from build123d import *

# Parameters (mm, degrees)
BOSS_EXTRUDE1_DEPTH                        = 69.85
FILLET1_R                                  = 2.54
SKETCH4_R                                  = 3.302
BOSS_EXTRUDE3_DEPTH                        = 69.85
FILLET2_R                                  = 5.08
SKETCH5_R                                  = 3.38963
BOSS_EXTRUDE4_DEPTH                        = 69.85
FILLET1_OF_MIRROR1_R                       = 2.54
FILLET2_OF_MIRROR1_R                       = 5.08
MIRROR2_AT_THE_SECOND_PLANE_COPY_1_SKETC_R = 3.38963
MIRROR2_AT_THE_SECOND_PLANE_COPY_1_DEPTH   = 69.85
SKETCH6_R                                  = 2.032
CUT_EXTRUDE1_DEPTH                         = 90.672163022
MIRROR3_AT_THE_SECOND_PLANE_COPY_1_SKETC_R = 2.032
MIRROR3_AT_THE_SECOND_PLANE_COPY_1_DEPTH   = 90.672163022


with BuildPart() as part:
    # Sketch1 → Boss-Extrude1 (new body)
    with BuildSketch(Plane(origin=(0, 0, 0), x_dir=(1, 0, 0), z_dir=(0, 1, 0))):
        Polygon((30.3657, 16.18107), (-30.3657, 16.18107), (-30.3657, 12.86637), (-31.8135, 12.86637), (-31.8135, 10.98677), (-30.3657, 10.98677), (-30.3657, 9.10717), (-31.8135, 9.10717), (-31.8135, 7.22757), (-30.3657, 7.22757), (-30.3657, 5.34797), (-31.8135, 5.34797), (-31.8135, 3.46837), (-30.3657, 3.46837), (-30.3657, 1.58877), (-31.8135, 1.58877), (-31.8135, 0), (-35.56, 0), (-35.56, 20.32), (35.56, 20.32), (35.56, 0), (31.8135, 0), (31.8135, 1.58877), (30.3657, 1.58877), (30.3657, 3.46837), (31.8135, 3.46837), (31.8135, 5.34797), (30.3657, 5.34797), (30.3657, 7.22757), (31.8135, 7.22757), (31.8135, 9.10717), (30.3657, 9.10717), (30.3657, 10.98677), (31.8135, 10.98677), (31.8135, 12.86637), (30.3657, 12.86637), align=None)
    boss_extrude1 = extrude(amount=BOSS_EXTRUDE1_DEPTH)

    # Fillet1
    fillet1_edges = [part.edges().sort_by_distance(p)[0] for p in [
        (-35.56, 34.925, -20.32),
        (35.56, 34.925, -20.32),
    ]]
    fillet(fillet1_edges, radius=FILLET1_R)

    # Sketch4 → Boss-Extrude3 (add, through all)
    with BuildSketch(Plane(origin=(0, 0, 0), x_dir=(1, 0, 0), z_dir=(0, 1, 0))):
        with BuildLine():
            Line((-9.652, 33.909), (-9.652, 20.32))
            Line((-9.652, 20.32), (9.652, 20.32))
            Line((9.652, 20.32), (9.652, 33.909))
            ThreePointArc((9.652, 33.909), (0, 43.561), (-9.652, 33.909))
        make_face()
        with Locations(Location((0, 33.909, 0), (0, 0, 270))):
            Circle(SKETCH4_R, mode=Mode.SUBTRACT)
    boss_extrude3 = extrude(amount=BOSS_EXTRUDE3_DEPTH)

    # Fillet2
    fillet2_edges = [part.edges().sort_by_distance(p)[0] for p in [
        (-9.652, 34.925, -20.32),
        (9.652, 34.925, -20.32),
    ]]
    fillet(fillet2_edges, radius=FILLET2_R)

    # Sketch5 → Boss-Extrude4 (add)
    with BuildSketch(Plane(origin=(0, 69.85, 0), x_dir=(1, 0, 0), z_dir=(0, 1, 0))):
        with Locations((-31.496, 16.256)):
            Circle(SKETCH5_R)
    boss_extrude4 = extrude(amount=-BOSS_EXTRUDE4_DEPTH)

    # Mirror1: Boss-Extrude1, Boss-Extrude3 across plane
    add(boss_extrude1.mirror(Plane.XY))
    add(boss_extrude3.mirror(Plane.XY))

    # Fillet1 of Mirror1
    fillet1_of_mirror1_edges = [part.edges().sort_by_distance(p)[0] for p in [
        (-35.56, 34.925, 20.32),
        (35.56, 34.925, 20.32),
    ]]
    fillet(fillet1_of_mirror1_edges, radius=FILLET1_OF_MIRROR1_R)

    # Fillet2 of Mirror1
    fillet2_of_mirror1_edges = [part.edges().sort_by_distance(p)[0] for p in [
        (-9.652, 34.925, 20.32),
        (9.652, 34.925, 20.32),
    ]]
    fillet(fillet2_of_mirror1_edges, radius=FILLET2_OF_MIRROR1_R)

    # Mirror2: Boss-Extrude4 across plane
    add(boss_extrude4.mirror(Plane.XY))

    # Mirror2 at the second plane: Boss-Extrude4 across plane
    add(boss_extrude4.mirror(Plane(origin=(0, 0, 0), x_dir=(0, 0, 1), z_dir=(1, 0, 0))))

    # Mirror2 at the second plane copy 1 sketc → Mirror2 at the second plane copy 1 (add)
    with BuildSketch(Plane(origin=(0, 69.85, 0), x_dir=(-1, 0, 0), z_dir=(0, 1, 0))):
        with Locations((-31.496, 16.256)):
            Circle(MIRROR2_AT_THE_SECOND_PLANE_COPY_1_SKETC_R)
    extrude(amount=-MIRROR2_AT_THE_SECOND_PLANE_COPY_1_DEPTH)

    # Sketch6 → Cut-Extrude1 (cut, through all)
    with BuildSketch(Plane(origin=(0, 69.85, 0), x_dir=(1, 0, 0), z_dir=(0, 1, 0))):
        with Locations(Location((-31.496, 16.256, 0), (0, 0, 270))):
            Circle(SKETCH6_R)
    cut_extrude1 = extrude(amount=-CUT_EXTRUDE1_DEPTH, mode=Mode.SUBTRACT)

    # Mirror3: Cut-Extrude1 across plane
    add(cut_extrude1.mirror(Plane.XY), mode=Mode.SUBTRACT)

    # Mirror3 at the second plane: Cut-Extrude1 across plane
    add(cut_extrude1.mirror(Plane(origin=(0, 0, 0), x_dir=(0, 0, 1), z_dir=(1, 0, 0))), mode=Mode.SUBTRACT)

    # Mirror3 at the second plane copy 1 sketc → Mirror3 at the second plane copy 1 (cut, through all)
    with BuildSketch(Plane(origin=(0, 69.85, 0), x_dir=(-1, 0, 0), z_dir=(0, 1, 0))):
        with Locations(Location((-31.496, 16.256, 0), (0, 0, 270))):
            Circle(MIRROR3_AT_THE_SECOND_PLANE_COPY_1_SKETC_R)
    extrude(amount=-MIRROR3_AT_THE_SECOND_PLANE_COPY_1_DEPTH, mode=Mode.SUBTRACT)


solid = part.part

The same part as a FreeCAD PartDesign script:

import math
import FreeCAD as App
import Part
import Sketcher
from FreeCAD import Vector
Q = App.Units.Quantity


def edges_at(feature, points):
    """Names of the edges that pass closest to the given points."""
    edges = feature.Shape.Edges
    near = lambda p: min(range(len(edges)), key=lambda i: edges[i].distToShape(Part.Vertex(*p))[0])
    return sorted({f"Edge{near(p) + 1}" for p in points})


def add_polygon(sketch, points):
    """Adds a closed chain of lines whose ends are joined by coincident constraints."""
    first, n = sketch.GeometryCount, len(points)
    for a, b in zip(points, points[1:] + points[:1]):
        sketch.addGeometry(Part.LineSegment(App.Vector(*a, 0), App.Vector(*b, 0)), False)
    for i in range(n):
        sketch.addConstraint(Sketcher.Constraint("Coincident", first + i, 2, first + (i + 1) % n, 1))

doc = App.newDocument("Part")
body = doc.addObject("PartDesign::Body", "Body")

# Sketch on XZ plane
sketch1 = body.newObject("Sketcher::SketchObject", "Sketch")
sketch1.AttachmentSupport = (doc.getObject("XZ_Plane"), [""])
sketch1.MapMode = "FlatFace"
add_polygon(sketch1, [(-30.4, -16.2), (30.4, -16.2), (30.4, -12.9), (31.8, -12.9), (31.8, -11), (30.4, -11), (30.4, -9.1), (31.8, -9.1), (31.8, -7.2), (30.4, -7.2), (30.4, -5.3), (31.8, -5.3), (31.8, -3.5), (30.4, -3.5), (30.4, -1.6), (31.8, -1.6), (31.8, 0), (35.6, 0), (35.6, -20.3), (-35.6, -20.3), (-35.6, 0), (-31.8, 0), (-31.8, -1.6), (-30.4, -1.6), (-30.4, -3.5), (-31.8, -3.5), (-31.8, -5.3), (-30.4, -5.3), (-30.4, -7.2), (-31.8, -7.2), (-31.8, -9.1), (-30.4, -9.1), (-30.4, -11), (-31.8, -11), (-31.8, -12.9), (-30.4, -12.9)])  # lines 0-35
sketch1.addConstraint([
    Sketcher.Constraint("Horizontal", 0),
    Sketcher.Constraint("Vertical", 1),
    Sketcher.Constraint("Horizontal", 2),
    Sketcher.Constraint("Vertical", 3),
    Sketcher.Constraint("Horizontal", 4),
    Sketcher.Constraint("Vertical", 5),
    Sketcher.Constraint("Horizontal", 6),
    Sketcher.Constraint("Vertical", 7),
    Sketcher.Constraint("Horizontal", 8),
    Sketcher.Constraint("Vertical", 9),
    Sketcher.Constraint("Horizontal", 10),
    Sketcher.Constraint("Vertical", 11),
    Sketcher.Constraint("Horizontal", 12),
    Sketcher.Constraint("Vertical", 13),
    Sketcher.Constraint("Horizontal", 14),
    Sketcher.Constraint("Vertical", 15),
    Sketcher.Constraint("Horizontal", 16),
    Sketcher.Constraint("Vertical", 17),
    Sketcher.Constraint("Horizontal", 18),
    Sketcher.Constraint("Vertical", 19),
    Sketcher.Constraint("Horizontal", 20),
    Sketcher.Constraint("Vertical", 21),
    Sketcher.Constraint("Horizontal", 22),
    Sketcher.Constraint("Vertical", 23),
    Sketcher.Constraint("Horizontal", 24),
    Sketcher.Constraint("Vertical", 25),
    Sketcher.Constraint("Horizontal", 26),
    Sketcher.Constraint("Vertical", 27),
    Sketcher.Constraint("Horizontal", 28),
    Sketcher.Constraint("Vertical", 29),
    Sketcher.Constraint("Horizontal", 30),
    Sketcher.Constraint("Vertical", 31),
    Sketcher.Constraint("Horizontal", 32),
    Sketcher.Constraint("Vertical", 33),
    Sketcher.Constraint("Horizontal", 34),
    Sketcher.Constraint("Vertical", 35),
    Sketcher.Constraint("Symmetric", 16, 2, 19, 2, -1, 1),
    Sketcher.Constraint("Symmetric", 15, 2, 20, 2, -2),
    Sketcher.Constraint("Symmetric", 13, 2, 22, 2, -2),
    Sketcher.Constraint("Symmetric", 11, 2, 24, 2, -2),
    Sketcher.Constraint("Symmetric", 9, 2, 26, 2, -2),
    Sketcher.Constraint("Symmetric", 7, 2, 28, 2, -2),
    Sketcher.Constraint("Symmetric", 5, 2, 30, 2, -2),
    Sketcher.Constraint("Symmetric", 3, 2, 32, 2, -2),
    Sketcher.Constraint("Symmetric", 1, 2, 34, 2, -2),
    Sketcher.Constraint("Vertical", 1, 2, 4, 2),
    Sketcher.Constraint("Vertical", 3, 2, 6, 2),
    Sketcher.Constraint("Vertical", 5, 2, 8, 2),
    Sketcher.Constraint("Vertical", 7, 2, 10, 2),
    Sketcher.Constraint("Vertical", 9, 2, 12, 2),
    Sketcher.Constraint("Vertical", 11, 2, 14, 2),
    Sketcher.Constraint("Equal", 3, 5),
    Sketcher.Constraint("Equal", 5, 7),
    Sketcher.Constraint("Equal", 7, 9),
    Sketcher.Constraint("Equal", 9, 11),
    Sketcher.Constraint("Equal", 11, 13),
    Sketcher.Constraint("DistanceX", 18, 2, 18, 1, Q("2.8 in")),
    Sketcher.Constraint("DistanceY", 17, 2, 17, 1, Q("0.8 in")),
    Sketcher.Constraint("DistanceX", 0, 1, 0, 2, Q("2.391 in")),
    Sketcher.Constraint("DistanceX", 2, 1, 2, 2, Q("0.057 in")),
    Sketcher.Constraint("DistanceY", 3, 1, 3, 2, Q("0.074 in")),
    Sketcher.Constraint("DistanceY", 1, 1, 1, 2, Q("0.1305 in")),
    Sketcher.Constraint("DistanceY", 15, 1, 15, 2, Q("1.58877 mm")),
])
pad1 = body.newObject("PartDesign::Pad", "Pad")
pad1.Profile = sketch1
pad1.Length = Q("2.75 in")
pad1.Reversed = True
doc.recompute()

fillet = body.newObject("PartDesign::Fillet", "Fillet")
fillet.Base = (pad1, edges_at(pad1, [(-35.56, 34.925, -20.32), (35.56, 34.925, -20.32)]))
fillet.Radius = Q("0.1 in")

# Sketch on XZ plane
sketch2 = body.newObject("Sketcher::SketchObject", "Sketch001")
sketch2.AttachmentSupport = (doc.getObject("XZ_Plane"), [""])
sketch2.MapMode = "FlatFace"
sketch2.addGeometry([
    Part.LineSegment(Vector(-9.7, -33.9, 0), Vector(-9.7, -20.3, 0)),  # 0
    Part.LineSegment(Vector(-9.7, -20.3, 0), Vector(9.7, -20.3, 0)),  # 1
    Part.LineSegment(Vector(9.7, -20.3, 0), Vector(9.7, -33.9, 0)),  # 2
    Part.ArcOfCircle(Part.Circle(Vector(0, -33.9, 0), Vector(0, 0, 1), 9.7), math.radians(180), math.radians(360)),  # 3
    Part.Circle(Vector(0, -33.9, 0), Vector(0, 0, 1), 3.3),  # 4
], False)
sketch2.addConstraint([
    Sketcher.Constraint("Coincident", 0, 2, 1, 1),
    Sketcher.Constraint("Coincident", 1, 2, 2, 1),
    Sketcher.Constraint("Tangent", 2, 2, 3, 2),
    Sketcher.Constraint("Tangent", 3, 1, 0, 1),
    Sketcher.Constraint("Vertical", 0),
    Sketcher.Constraint("Horizontal", 1),
    Sketcher.Constraint("Vertical", 2),
    Sketcher.Constraint("Coincident", 4, 3, 3, 3),
    Sketcher.Constraint("PointOnObject", 3, 3, -2),
    Sketcher.Constraint("Diameter", 4, Q("0.26 in")),
    Sketcher.Constraint("Radius", 3, Q("0.38 in")),
    Sketcher.Constraint("DistanceY", 0, 2, -1, 1, Q("0.8 in")),
    Sketcher.Constraint("DistanceY", 0, 1, 0, 2, Q("0.535 in")),
])
pad2 = body.newObject("PartDesign::Pad", "Pad001")
pad2.Profile = sketch2
pad2.Length = Q("2.75 in")
pad2.Reversed = True
doc.recompute()

fillet2 = body.newObject("PartDesign::Fillet", "Fillet001")
fillet2.Base = (pad2, edges_at(pad2, [(-9.652, 34.925, -20.32), (9.652, 34.925, -20.32)]))
fillet2.Radius = Q("0.2 in")

# Sketch on XZ plane
sketch3 = body.newObject("Sketcher::SketchObject", "Sketch002")
sketch3.AttachmentSupport = (doc.getObject("XZ_Plane"), [""])
sketch3.MapMode = "FlatFace"
sketch3.AttachmentOffset = App.Placement(Vector(0, 0, -2.75 * 25.4), App.Rotation())
sketch3.addGeometry(Part.Circle(Vector(-31.5, -16.3, 0), Vector(0, 0, 1), 3.4), False)
sketch3.addConstraint([
    Sketcher.Constraint("Diameter", 0, Q("0.2669 in")),
    Sketcher.Constraint("DistanceX", 0, 3, -1, 1, Q("1.24 in")),
    Sketcher.Constraint("DistanceY", 0, 3, -1, 1, Q("0.64 in")),
])
pad3 = body.newObject("PartDesign::Pad", "Pad002")
pad3.Profile = sketch3
pad3.Length = Q("2.75 in")
doc.recompute()

mirrored = body.newObject("PartDesign::Mirrored", "Mirrored")
mirrored.Originals = [pad1, pad2]
mirrored.MirrorPlane = (doc.getObject("XY_Plane"), [""])
body.Tip = mirrored
doc.recompute()

fillet3 = body.newObject("PartDesign::Fillet", "Fillet002")
fillet3.Base = (mirrored, edges_at(mirrored, [(-35.56, 34.925, 20.32), (35.56, 34.925, 20.32)]))
fillet3.Radius = Q("0.1 in")
doc.recompute()

fillet4 = body.newObject("PartDesign::Fillet", "Fillet003")
fillet4.Base = (fillet3, edges_at(fillet3, [(-9.652, 34.925, 20.32), (9.652, 34.925, 20.32)]))
fillet4.Radius = Q("0.2 in")
doc.recompute()

mirrored2 = body.newObject("PartDesign::Mirrored", "Mirrored001")
mirrored2.Originals = [pad3]
mirrored2.MirrorPlane = (doc.getObject("XY_Plane"), [""])
body.Tip = mirrored2
doc.recompute()

mirrored3 = body.newObject("PartDesign::Mirrored", "Mirrored002")
mirrored3.Originals = [pad3]
mirrored3.MirrorPlane = (doc.getObject("YZ_Plane"), [""])
body.Tip = mirrored3

# Sketch on XZ plane
sketch4 = body.newObject("Sketcher::SketchObject", "Sketch003")
sketch4.AttachmentSupport = (doc.getObject("XZ_Plane"), [""])
sketch4.MapMode = "FlatFace"
sketch4.AttachmentOffset = App.Placement(Vector(0, 0, -2.75 * 25.4), App.Rotation())
sketch4.addGeometry(Part.Circle(Vector(31.5, 16.3, 0), Vector(0, 0, 1), 3.4), False)
sketch4.addConstraint([
    Sketcher.Constraint("Diameter", 0, Q("0.2669 in")),
    Sketcher.Constraint("DistanceX", -1, 1, 0, 3, Q("1.24 in")),
    Sketcher.Constraint("DistanceY", -1, 1, 0, 3, Q("0.64 in")),
])
pad4 = body.newObject("PartDesign::Pad", "Pad003")
pad4.Profile = sketch4
pad4.Length = Q("2.75 in")

# Sketch on XZ plane
sketch5 = body.newObject("Sketcher::SketchObject", "Sketch004")
sketch5.AttachmentSupport = (doc.getObject("XZ_Plane"), [""])
sketch5.MapMode = "FlatFace"
sketch5.AttachmentOffset = App.Placement(Vector(0, 0, -2.75 * 25.4), App.Rotation())
sketch5.addGeometry(Part.Circle(Vector(-31.5, -16.3, 0), Vector(0, 0, 1), 2), False)
sketch5.addConstraint([
    Sketcher.Constraint("Diameter", 0, Q("0.16 in")),
    Sketcher.Constraint("DistanceX", 0, 3, -1, 1, Q("1.24 in")),
    Sketcher.Constraint("DistanceY", 0, 3, -1, 1, Q("0.64 in")),
])
pocket1 = body.newObject("PartDesign::Pocket", "Pocket")
pocket1.Profile = sketch5
pocket1.Type = "ThroughAll"
pocket1.Reversed = True
doc.recompute()

mirrored4 = body.newObject("PartDesign::Mirrored", "Mirrored003")
mirrored4.Originals = [pocket1]
mirrored4.MirrorPlane = (doc.getObject("XY_Plane"), [""])
body.Tip = mirrored4
doc.recompute()

mirrored5 = body.newObject("PartDesign::Mirrored", "Mirrored004")
mirrored5.Originals = [pocket1]
mirrored5.MirrorPlane = (doc.getObject("YZ_Plane"), [""])
body.Tip = mirrored5

# Sketch on XZ plane
sketch6 = body.newObject("Sketcher::SketchObject", "Sketch005")
sketch6.AttachmentSupport = (doc.getObject("XZ_Plane"), [""])
sketch6.MapMode = "FlatFace"
sketch6.AttachmentOffset = App.Placement(Vector(0, 0, -2.75 * 25.4), App.Rotation())
sketch6.addGeometry(Part.Circle(Vector(31.5, 16.3, 0), Vector(0, 0, 1), 2), False)
sketch6.addConstraint([
    Sketcher.Constraint("Diameter", 0, Q("0.16 in")),
    Sketcher.Constraint("DistanceX", -1, 1, 0, 3, Q("1.24 in")),
    Sketcher.Constraint("DistanceY", -1, 1, 0, 3, Q("0.64 in")),
])
pocket2 = body.newObject("PartDesign::Pocket", "Pocket001")
pocket2.Profile = sketch6
pocket2.Type = "ThroughAll"
pocket2.Reversed = True

doc.recompute()
